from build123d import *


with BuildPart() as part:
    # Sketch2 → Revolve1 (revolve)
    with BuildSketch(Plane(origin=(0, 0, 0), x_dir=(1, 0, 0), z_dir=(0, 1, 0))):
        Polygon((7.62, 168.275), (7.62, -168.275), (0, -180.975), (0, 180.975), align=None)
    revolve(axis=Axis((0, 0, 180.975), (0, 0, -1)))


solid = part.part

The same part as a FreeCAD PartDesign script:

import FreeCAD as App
import Part
import Sketcher

V = App.Vector
Q = App.Units.Quantity


def add_polygon(sketch, points):
    """Adds a closed chain of lines whose ends are joined by coincident constraints."""
    first, n = sketch.GeometryCount, len(points)
    for a, b in zip(points, points[1:] + points[:1]):
        sketch.addGeometry(Part.LineSegment(App.Vector(*a, 0), App.Vector(*b, 0)), False)
    for i in range(n):
        sketch.addConstraint(Sketcher.Constraint("Coincident", first + i, 2, first + (i + 1) % n, 1))

doc = App.newDocument("Part")
body = doc.addObject("PartDesign::Body", "Body")

# Sketch on XZ plane
sketch1 = body.newObject("Sketcher::SketchObject", "Sketch")
sketch1.AttachmentSupport = (doc.getObject("XZ_Plane"), [""])
sketch1.MapMode = "FlatFace"
add_polygon(sketch1, [(7.62, 168.275), (7.62, -168.275), (0, -180.975), (0, 180.975)])  # lines 0-3
sketch1.addConstraint(Sketcher.Constraint("Vertical", 0))
sketch1.addConstraint(Sketcher.Constraint("Vertical", 2))
sketch1.addConstraint(Sketcher.Constraint("Symmetric", 1, 2, 2, 2, -1, 1))
sketch1.addConstraint(Sketcher.Constraint("Equal", 1, 3))
sketch1.addConstraint(Sketcher.Constraint("DistanceY", 0, 2, 0, 1, Q("13.25 in")))
sketch1.addConstraint(Sketcher.Constraint("DistanceY", 2, 1, 2, 2, Q("14.25 in")))
sketch1.addConstraint(Sketcher.Constraint("DistanceX", -1, 1, 0, 2, Q("0.3 in")))
revolution = body.newObject("PartDesign::Revolution", "Revolution")
revolution.Profile = sketch1
revolution.ReferenceAxis = (sketch1, ["V_Axis"])
revolution.Angle = 360

doc.recompute()
